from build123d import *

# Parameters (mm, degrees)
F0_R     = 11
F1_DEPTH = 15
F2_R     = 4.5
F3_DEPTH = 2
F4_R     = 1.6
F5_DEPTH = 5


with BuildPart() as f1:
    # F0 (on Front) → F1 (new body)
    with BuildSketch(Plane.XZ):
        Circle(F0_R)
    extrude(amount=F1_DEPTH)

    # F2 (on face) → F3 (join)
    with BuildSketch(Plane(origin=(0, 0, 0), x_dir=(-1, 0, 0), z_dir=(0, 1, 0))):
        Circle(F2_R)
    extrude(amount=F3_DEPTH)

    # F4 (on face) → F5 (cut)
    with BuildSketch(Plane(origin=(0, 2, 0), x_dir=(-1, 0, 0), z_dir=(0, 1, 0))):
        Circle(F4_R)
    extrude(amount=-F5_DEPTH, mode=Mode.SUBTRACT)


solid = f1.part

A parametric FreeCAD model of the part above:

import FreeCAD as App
import Part
import Sketcher

V = App.Vector

doc = App.newDocument("Part")
body = doc.addObject("PartDesign::Body", "Body")

# Sketch on XZ plane
sketch1 = body.newObject("Sketcher::SketchObject", "Sketch")
sketch1.AttachmentSupport = (doc.getObject("XZ_Plane"), [""])
sketch1.MapMode = "FlatFace"
sketch1.addGeometry(Part.Circle(V(0, 0, 0), V(0, 0, 1), 11), False)
sketch1.addConstraint([
    Sketcher.Constraint("Coincident", 0, 3, -1, 1),
    Sketcher.Constraint("Diameter", 0, 22.0),
])
pad1 = body.newObject("PartDesign::Pad", "Pad")
pad1.Profile = sketch1
pad1.Length = 15

# Sketch on XZ plane
sketch2 = body.newObject("Sketcher::SketchObject", "Sketch001")
sketch2.AttachmentSupport = (doc.getObject("XZ_Plane"), [""])
sketch2.MapMode = "FlatFace"
sketch2.addGeometry(Part.Circle(V(0, 0, 0), V(0, 0, 1), 4.5), False)
sketch2.addConstraint([
    Sketcher.Constraint("Coincident", 0, 3, -1, 1),
    Sketcher.Constraint("Diameter", 0, 9.0),
])
pad2 = body.newObject("PartDesign::Pad", "Pad001")
pad2.Profile = sketch2
pad2.Length = 2
pad2.Reversed = True

# Sketch on XZ plane
sketch3 = body.newObject("Sketcher::SketchObject", "Sketch002")
sketch3.AttachmentSupport = (doc.getObject("XZ_Plane"), [""])
sketch3.MapMode = "FlatFace"
sketch3.AttachmentOffset = App.Placement(V(0, 0, -2), App.Rotation())
sketch3.addGeometry(Part.Circle(V(0, 0, 0), V(0, 0, 1), 1.6), False)
sketch3.addConstraint([
    Sketcher.Constraint("Coincident", 0, 3, -1, 1),
    Sketcher.Constraint("Diameter", 0, 3.2),
])
pocket1 = body.newObject("PartDesign::Pocket", "Pocket")
pocket1.Profile = sketch3
pocket1.Length = 5
pocket1.Reversed = True

doc.recompute()
